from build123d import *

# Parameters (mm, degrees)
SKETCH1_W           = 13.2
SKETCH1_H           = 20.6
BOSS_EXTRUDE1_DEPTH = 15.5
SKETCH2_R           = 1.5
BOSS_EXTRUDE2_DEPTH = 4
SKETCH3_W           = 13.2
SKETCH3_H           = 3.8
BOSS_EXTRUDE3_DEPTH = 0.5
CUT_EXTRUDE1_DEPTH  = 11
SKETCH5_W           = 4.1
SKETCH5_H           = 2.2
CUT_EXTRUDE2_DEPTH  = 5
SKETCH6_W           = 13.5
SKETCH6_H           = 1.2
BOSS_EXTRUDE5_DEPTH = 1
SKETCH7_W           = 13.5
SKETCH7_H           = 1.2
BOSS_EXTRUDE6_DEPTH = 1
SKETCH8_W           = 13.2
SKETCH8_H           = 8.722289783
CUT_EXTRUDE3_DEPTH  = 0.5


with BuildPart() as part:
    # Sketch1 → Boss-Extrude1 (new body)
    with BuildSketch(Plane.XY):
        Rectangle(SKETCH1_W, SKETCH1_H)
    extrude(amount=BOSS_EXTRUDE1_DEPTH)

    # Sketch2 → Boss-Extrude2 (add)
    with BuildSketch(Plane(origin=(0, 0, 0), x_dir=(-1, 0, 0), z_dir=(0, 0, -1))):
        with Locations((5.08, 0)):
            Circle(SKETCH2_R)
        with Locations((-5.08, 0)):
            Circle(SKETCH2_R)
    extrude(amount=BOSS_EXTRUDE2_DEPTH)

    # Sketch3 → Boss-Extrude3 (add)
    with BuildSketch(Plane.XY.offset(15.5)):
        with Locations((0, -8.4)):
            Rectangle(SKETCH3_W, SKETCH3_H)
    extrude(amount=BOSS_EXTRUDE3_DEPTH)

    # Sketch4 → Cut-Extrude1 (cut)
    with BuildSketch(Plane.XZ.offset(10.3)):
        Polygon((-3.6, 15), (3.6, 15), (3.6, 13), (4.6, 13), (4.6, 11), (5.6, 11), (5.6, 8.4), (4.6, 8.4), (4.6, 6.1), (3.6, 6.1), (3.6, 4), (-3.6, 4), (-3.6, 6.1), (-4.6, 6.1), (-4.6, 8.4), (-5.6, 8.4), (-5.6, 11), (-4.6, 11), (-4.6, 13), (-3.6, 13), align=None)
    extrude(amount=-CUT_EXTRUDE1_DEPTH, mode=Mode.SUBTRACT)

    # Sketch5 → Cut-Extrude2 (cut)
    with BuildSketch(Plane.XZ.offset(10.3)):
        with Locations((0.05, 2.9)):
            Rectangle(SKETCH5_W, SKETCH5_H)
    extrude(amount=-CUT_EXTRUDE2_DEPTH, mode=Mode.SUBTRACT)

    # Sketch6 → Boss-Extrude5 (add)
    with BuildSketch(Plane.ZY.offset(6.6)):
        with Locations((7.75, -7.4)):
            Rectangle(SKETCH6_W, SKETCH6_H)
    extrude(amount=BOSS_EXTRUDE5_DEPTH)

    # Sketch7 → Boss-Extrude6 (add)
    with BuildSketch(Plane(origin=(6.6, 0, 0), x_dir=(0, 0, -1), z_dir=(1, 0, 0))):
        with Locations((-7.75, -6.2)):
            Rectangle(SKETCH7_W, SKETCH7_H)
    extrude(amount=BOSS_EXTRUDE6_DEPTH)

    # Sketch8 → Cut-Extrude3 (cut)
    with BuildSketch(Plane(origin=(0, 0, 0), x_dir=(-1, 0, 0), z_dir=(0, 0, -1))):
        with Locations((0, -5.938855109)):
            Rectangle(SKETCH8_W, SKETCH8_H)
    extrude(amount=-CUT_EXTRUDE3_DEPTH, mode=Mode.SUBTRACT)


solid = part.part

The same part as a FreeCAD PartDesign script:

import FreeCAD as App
import Part
import Sketcher

V = App.Vector


def add_polygon(sketch, points):
    """Adds a closed chain of lines whose ends are joined by coincident constraints."""
    first, n = sketch.GeometryCount, len(points)
    for a, b in zip(points, points[1:] + points[:1]):
        sketch.addGeometry(Part.LineSegment(App.Vector(*a, 0), App.Vector(*b, 0)), False)
    for i in range(n):
        sketch.addConstraint(Sketcher.Constraint("Coincident", first + i, 2, first + (i + 1) % n, 1))

doc = App.newDocument("Part")
body = doc.addObject("PartDesign::Body", "Body")

# Sketch on XY plane
sketch1 = body.newObject("Sketcher::SketchObject", "Sketch")
sketch1.AttachmentSupport = (doc.getObject("XY_Plane"), [""])
sketch1.MapMode = "FlatFace"
add_polygon(sketch1, [(-7, 10), (-7, -10), (7, -10), (7, 10)])  # lines 0-3
sketch1.addConstraint([
    Sketcher.Constraint("Vertical", 0),
    Sketcher.Constraint("Horizontal", 1),
    Sketcher.Constraint("Vertical", 2),
    Sketcher.Constraint("Horizontal", 3),
    Sketcher.Constraint("Symmetric", 0, 2, 2, 2, -1, 1),
    Sketcher.Constraint("DistanceX", 1, 1, 1, 2, 13.2),
    Sketcher.Constraint("DistanceY", 0, 2, 0, 1, 20.6),
])
pad1 = body.newObject("PartDesign::Pad", "Pad")
pad1.Profile = sketch1
pad1.Length = 15.5

# Sketch on XY plane
sketch2 = body.newObject("Sketcher::SketchObject", "Sketch001")
sketch2.AttachmentSupport = (doc.getObject("XY_Plane"), [""])
sketch2.MapMode = "FlatFace"
sketch2.addGeometry([
    Part.Circle(V(-5.1, 0, 0), V(0, 0, 1), 1.5),
    Part.Circle(V(5.1, 0, 0), V(0, 0, 1), 1.5),
], False)
sketch2.addConstraint([
    Sketcher.Constraint("Equal", 0, 1),
    Sketcher.Constraint("Symmetric", 0, 3, 1, 3, -1, 1),
    Sketcher.Constraint("PointOnObject", 0, 3, -1),
    Sketcher.Constraint("Diameter", 0, 3.0),
    Sketcher.Constraint("DistanceX", 0, 3, -1, 1, 5.08),
])
pad2 = body.newObject("PartDesign::Pad", "Pad001")
pad2.Profile = sketch2
pad2.Length = 4
pad2.Reversed = True

# Sketch on XY plane
sketch3 = body.newObject("Sketcher::SketchObject", "Sketch002")
sketch3.AttachmentSupport = (doc.getObject("XY_Plane"), [""])
sketch3.MapMode = "FlatFace"
sketch3.AttachmentOffset = App.Placement(V(0, 0, 15.5), App.Rotation())
add_polygon(sketch3, [(-6.6, -6.5), (-6.6, -10.3), (6.6, -10.3), (6.6, -6.5)])  # lines 0-3
sketch3.addConstraint([
    Sketcher.Constraint("Vertical", 0),
    Sketcher.Constraint("Horizontal", 1),
    Sketcher.Constraint("Vertical", 2),
    Sketcher.Constraint("Horizontal", 3),
    Sketcher.Constraint("DistanceX", 1, 1, 1, 2, 13.2),
    Sketcher.Constraint("DistanceY", 0, 2, 0, 1, 3.8),
    Sketcher.Constraint("DistanceX", 0, 2, -1, 1, 6.6),
    Sketcher.Constraint("DistanceY", 0, 2, -1, 1, 10.3),
])
pad3 = body.newObject("PartDesign::Pad", "Pad002")
pad3.Profile = sketch3
pad3.Length = 0.5

# Sketch on XZ plane
sketch4 = body.newObject("Sketcher::SketchObject", "Sketch003")
sketch4.AttachmentSupport = (doc.getObject("XZ_Plane"), [""])
sketch4.MapMode = "FlatFace"
sketch4.AttachmentOffset = App.Placement(V(0, 0, 10.3), App.Rotation())
add_polygon(sketch4, [(3.6, 15), (-3.6, 15), (-3.6, 13), (-4.6, 13), (-4.6, 11), (-5.6, 11), (-5.6, 8.4), (-4.6, 8.4), (-4.6, 6.1), (-3.6, 6.1), (-3.6, 4), (3.6, 4), (3.6, 6.1), (4.6, 6.1), (4.6, 8.4), (5.6, 8.4), (5.6, 11), (4.6, 11), (4.6, 13), (3.6, 13)])  # lines 0-19
sketch4.addConstraint([
    Sketcher.Constraint("Horizontal", 0),
    Sketcher.Constraint("Vertical", 1),
    Sketcher.Constraint("Horizontal", 2),
    Sketcher.Constraint("Vertical", 3),
    Sketcher.Constraint("Horizontal", 4),
    Sketcher.Constraint("Vertical", 5),
    Sketcher.Constraint("Horizontal", 6),
    Sketcher.Constraint("Vertical", 7),
    Sketcher.Constraint("Horizontal", 8),
    Sketcher.Constraint("Vertical", 9),
    Sketcher.Constraint("Horizontal", 10),
    Sketcher.Constraint("Vertical", 11),
    Sketcher.Constraint("Horizontal", 12),
    Sketcher.Constraint("Vertical", 13),
    Sketcher.Constraint("Horizontal", 14),
    Sketcher.Constraint("Vertical", 15),
    Sketcher.Constraint("Horizontal", 16),
    Sketcher.Constraint("Vertical", 17),
    Sketcher.Constraint("Horizontal", 18),
    Sketcher.Constraint("Vertical", 19),
    Sketcher.Constraint("Symmetric", 8, 2, 11, 2, -2),
    Sketcher.Constraint("Symmetric", 6, 2, 13, 2, -2),
    Sketcher.Constraint("Symmetric", 4, 2, 15, 2, -2),
    Sketcher.Constraint("Symmetric", 2, 2, 17, 2, -2),
    Sketcher.Constraint("Vertical", 3, 2, 6, 2),
    Sketcher.Constraint("Vertical", 1, 2, 8, 2),
    Sketcher.Constraint("Vertical", 11, 2, 18, 2),
    Sketcher.Constraint("Equal", 2, 4),
    Sketcher.Constraint("Equal", 1, 3),
    Sketcher.Constraint("DistanceX", 2, 2, 2, 1, 1.0),
    Sketcher.Constraint("DistanceY", 1, 2, 1, 1, 2.0),
    Sketcher.Constraint("DistanceX", 0, 2, 0, 1, 7.2),
    Sketcher.Constraint("DistanceY", 5, 2, 5, 1, 2.6),
    Sketcher.Constraint("DistanceY", 7, 2, 7, 1, 2.3),
    Sketcher.Constraint("DistanceY", 9, 2, 9, 1, 2.1),
    Sketcher.Constraint("DistanceY", -1, 1, 0, 2, 15.0),
])
pocket1 = body.newObject("PartDesign::Pocket", "Pocket")
pocket1.Profile = sketch4
pocket1.Length = 11

# Sketch on XZ plane
sketch5 = body.newObject("Sketcher::SketchObject", "Sketch004")
sketch5.AttachmentSupport = (doc.getObject("XZ_Plane"), [""])
sketch5.MapMode = "FlatFace"
sketch5.AttachmentOffset = App.Placement(V(0, 0, 10.3), App.Rotation())
add_polygon(sketch5, [(-2, 4), (-2, 1.8), (2.1, 1.8), (2.1, 4)])  # lines 0-3
sketch5.addConstraint([
    Sketcher.Constraint("Vertical", 0),
    Sketcher.Constraint("Horizontal", 1),
    Sketcher.Constraint("Vertical", 2),
    Sketcher.Constraint("Horizontal", 3),
    Sketcher.Constraint("DistanceX", 1, 1, 1, 2, 4.1),
    Sketcher.Constraint("DistanceY", 0, 2, 0, 1, 2.2),
    Sketcher.Constraint("DistanceX", 0, 2, -1, 1, 2.0),
    Sketcher.Constraint("DistanceY", -1, 1, 2, 2, 4.0),
])
pocket2 = body.newObject("PartDesign::Pocket", "Pocket001")
pocket2.Profile = sketch5
pocket2.Length = 5

# Sketch on YZ plane
sketch6 = body.newObject("Sketcher::SketchObject", "Sketch005")
sketch6.AttachmentSupport = (doc.getObject("YZ_Plane"), [""])
sketch6.MapMode = "FlatFace"
sketch6.AttachmentOffset = App.Placement(V(0, 0, -6.6), App.Rotation())
add_polygon(sketch6, [(-6.8, 1), (-8, 1), (-8, 14.5), (-6.8, 14.5)])  # lines 0-3
sketch6.addConstraint([
    Sketcher.Constraint("Horizontal", 0),
    Sketcher.Constraint("Vertical", 1),
    Sketcher.Constraint("Horizontal", 2),
    Sketcher.Constraint("Vertical", 3),
    Sketcher.Constraint("DistanceX", 0, 2, 0, 1, 1.2),
    Sketcher.Constraint("DistanceY", 1, 1, 1, 2, 13.5),
    Sketcher.Constraint("DistanceX", 0, 2, -1, 1, 8.0),
    Sketcher.Constraint("DistanceY", -1, 1, 0, 2, 1.0),
])
pad4 = body.newObject("PartDesign::Pad", "Pad003")
pad4.Profile = sketch6
pad4.Length = 1
pad4.Reversed = True

# Sketch on YZ plane
sketch7 = body.newObject("Sketcher::SketchObject", "Sketch006")
sketch7.AttachmentSupport = (doc.getObject("YZ_Plane"), [""])
sketch7.MapMode = "FlatFace"
sketch7.AttachmentOffset = App.Placement(V(0, 0, 6.6), App.Rotation())
add_polygon(sketch7, [(-5.6, 14.5), (-6.8, 14.5), (-6.8, 1), (-5.6, 1)])  # lines 0-3
sketch7.addConstraint([
    Sketcher.Constraint("Horizontal", 0),
    Sketcher.Constraint("Vertical", 1),
    Sketcher.Constraint("Horizontal", 2),
    Sketcher.Constraint("Vertical", 3),
    Sketcher.Constraint("DistanceX", 0, 2, 0, 1, 1.2),
    Sketcher.Constraint("DistanceY", 1, 2, 1, 1, 13.5),
    Sketcher.Constraint("DistanceY", -1, 1, 1, 2, 1.0),
    Sketcher.Constraint("DistanceX", 0, 2, -1, 1, 6.8),
])
pad5 = body.newObject("PartDesign::Pad", "Pad004")
pad5.Profile = sketch7
pad5.Length = 1

# Sketch on XY plane
sketch8 = body.newObject("Sketcher::SketchObject", "Sketch007")
sketch8.AttachmentSupport = (doc.getObject("XY_Plane"), [""])
sketch8.MapMode = "FlatFace"
add_polygon(sketch8, [(7, -2), (7, -10), (-7, -10), (-7, -2)])  # lines 0-3
sketch8.addConstraint([
    Sketcher.Constraint("Vertical", 0),
    Sketcher.Constraint("Horizontal", 1),
    Sketcher.Constraint("Vertical", 2),
    Sketcher.Constraint("Horizontal", 3),
    Sketcher.Constraint("DistanceX", 1, 2, 1, 1, 13.2),
    Sketcher.Constraint("DistanceX", -1, 1, 0, 2, 6.6),
    Sketcher.Constraint("DistanceY", 0, 2, -1, 1, 10.3),
    Sketcher.Constraint("DistanceY", 0, 2, 0, 1, 8.72229),
])
pocket3 = body.newObject("PartDesign::Pocket", "Pocket002")
pocket3.Profile = sketch8
pocket3.Length = 0.5
pocket3.Reversed = True

doc.recompute()
